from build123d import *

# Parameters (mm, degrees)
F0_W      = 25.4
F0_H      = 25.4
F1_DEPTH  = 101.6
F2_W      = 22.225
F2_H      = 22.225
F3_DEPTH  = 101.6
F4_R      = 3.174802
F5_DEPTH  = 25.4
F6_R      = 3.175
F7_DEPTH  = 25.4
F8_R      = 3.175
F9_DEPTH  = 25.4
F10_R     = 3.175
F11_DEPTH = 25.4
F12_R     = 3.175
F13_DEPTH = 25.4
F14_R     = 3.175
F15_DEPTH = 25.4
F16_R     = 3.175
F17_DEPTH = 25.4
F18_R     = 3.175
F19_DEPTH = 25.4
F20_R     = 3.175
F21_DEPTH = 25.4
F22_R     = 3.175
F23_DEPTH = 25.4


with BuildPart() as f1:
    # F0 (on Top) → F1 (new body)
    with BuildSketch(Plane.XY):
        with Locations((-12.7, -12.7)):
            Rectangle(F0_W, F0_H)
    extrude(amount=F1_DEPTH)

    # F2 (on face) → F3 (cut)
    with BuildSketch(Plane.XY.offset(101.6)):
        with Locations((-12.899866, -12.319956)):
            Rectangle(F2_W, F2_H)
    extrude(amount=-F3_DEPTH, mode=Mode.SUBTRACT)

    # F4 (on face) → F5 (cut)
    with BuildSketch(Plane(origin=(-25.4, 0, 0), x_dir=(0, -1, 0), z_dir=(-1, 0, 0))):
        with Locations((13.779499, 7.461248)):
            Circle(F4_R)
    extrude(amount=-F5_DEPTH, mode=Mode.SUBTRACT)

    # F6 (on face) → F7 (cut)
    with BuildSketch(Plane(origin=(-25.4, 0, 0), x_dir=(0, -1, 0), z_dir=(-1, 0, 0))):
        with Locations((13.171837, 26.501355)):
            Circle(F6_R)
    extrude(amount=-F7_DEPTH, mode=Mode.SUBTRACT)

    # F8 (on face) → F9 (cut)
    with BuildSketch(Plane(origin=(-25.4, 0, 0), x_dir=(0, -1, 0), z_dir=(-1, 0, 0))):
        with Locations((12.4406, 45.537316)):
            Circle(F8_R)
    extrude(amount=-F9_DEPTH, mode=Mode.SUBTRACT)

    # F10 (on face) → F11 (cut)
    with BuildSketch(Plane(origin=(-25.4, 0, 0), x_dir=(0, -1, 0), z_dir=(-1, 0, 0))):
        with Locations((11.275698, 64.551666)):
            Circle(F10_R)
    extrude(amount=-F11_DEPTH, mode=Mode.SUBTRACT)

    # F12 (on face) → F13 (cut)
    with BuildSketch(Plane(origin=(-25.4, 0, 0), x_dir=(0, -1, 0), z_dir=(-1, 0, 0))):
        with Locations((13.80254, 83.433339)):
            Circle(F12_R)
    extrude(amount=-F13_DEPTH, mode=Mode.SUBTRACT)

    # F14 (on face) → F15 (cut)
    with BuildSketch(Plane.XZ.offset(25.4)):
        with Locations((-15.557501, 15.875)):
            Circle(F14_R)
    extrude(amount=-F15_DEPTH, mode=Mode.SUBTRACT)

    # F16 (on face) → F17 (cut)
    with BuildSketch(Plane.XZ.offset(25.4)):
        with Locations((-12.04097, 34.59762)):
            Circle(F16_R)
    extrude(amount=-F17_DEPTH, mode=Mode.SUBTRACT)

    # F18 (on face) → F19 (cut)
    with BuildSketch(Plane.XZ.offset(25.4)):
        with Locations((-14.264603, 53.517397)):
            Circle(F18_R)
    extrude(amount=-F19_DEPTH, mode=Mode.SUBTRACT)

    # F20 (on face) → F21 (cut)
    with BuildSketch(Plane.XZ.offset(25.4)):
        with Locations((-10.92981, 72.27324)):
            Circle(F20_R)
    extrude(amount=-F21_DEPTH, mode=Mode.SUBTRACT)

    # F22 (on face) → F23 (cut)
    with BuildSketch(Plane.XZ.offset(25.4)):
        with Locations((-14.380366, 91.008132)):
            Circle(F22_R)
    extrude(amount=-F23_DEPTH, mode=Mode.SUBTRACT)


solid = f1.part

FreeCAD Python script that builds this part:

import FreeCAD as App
import Part
import Sketcher
Q = App.Units.Quantity


def add_polygon(sketch, points):
    """Adds a closed chain of lines whose ends are joined by coincident constraints."""
    first, n = sketch.GeometryCount, len(points)
    for a, b in zip(points, points[1:] + points[:1]):
        sketch.addGeometry(Part.LineSegment(App.Vector(*a, 0), App.Vector(*b, 0)), False)
    for i in range(n):
        sketch.addConstraint(Sketcher.Constraint("Coincident", first + i, 2, first + (i + 1) % n, 1))

doc = App.newDocument("Part")
body = doc.addObject("PartDesign::Body", "Body")

# Sketch on XY plane
sketch1 = doc.addObject("Sketcher::SketchObject", "Sketch")
body.addObject(sketch1)
sketch1.AttachmentSupport = (doc.XY_Plane, [""])
sketch1.MapMode = "FlatFace"
add_polygon(sketch1, [(-25.4, 0), (-25.4, -25.4), (0, -25.4), (0, 0)])  # lines 0-3
sketch1.addConstraint(Sketcher.Constraint("Vertical", 0))
sketch1.addConstraint(Sketcher.Constraint("Horizontal", 1))
sketch1.addConstraint(Sketcher.Constraint("Vertical", 2))
sketch1.addConstraint(Sketcher.Constraint("Horizontal", 3))
sketch1.addConstraint(Sketcher.Constraint("Coincident", 2, 2, -1, 1))
sketch1.addConstraint(Sketcher.Constraint("Equal", 3, 0))
sketch1.addConstraint(Sketcher.Constraint("DistanceX", 1, 1, 1, 2, Q("1 in")))
pad1 = doc.addObject("PartDesign::Pad", "Pad")
body.addObject(pad1)
pad1.Profile = sketch1
pad1.Length = Q("4 in")

# Sketch on XY plane
sketch2 = doc.addObject("Sketcher::SketchObject", "Sketch001")
body.addObject(sketch2)
sketch2.AttachmentSupport = (doc.XY_Plane, [""])
sketch2.MapMode = "FlatFace"
sketch2.AttachmentOffset = App.Placement(App.Vector(0, 0, 4 * 25.4), App.Rotation())
add_polygon(sketch2, [(-24.012366, -1.207456), (-24.012366, -23.432456), (-1.787366, -23.432456), (-1.787366, -1.207456)])  # lines 0-3
sketch2.addConstraint(Sketcher.Constraint("Vertical", 0))
sketch2.addConstraint(Sketcher.Constraint("Horizontal", 1))
sketch2.addConstraint(Sketcher.Constraint("Vertical", 2))
sketch2.addConstraint(Sketcher.Constraint("Horizontal", 3))
sketch2.addConstraint(Sketcher.Constraint("Equal", 3, 0))
sketch2.addConstraint(Sketcher.Constraint("DistanceX", 1, 1, 1, 2, Q("0.875 in")))
sketch2.addConstraint(Sketcher.Constraint("DistanceX", 0, 2, -1, 1, 24.012366))
sketch2.addConstraint(Sketcher.Constraint("DistanceY", 0, 2, -1, 1, 23.432456))
pocket1 = doc.addObject("PartDesign::Pocket", "Pocket")
body.addObject(pocket1)
pocket1.Profile = sketch2
pocket1.Length = Q("4 in")

# Sketch on YZ plane
sketch3 = doc.addObject("Sketcher::SketchObject", "Sketch002")
body.addObject(sketch3)
sketch3.AttachmentSupport = (doc.YZ_Plane, [""])
sketch3.MapMode = "FlatFace"
sketch3.AttachmentOffset = App.Placement(App.Vector(0, 0, -1 * 25.4), App.Rotation())
sketch3.addGeometry(Part.Circle(App.Vector(-13.779499, 7.461248, 0), App.Vector(0, 0, 1), 3.174802), False)
sketch3.addConstraint(Sketcher.Constraint("Diameter", 0, 6.349604))
sketch3.addConstraint(Sketcher.Constraint("DistanceX", 0, 3, -1, 1, Q("0.5425 in")))
sketch3.addConstraint(Sketcher.Constraint("DistanceY", -1, 1, 0, 3, 7.461248))
pocket2 = doc.addObject("PartDesign::Pocket", "Pocket001")
body.addObject(pocket2)
pocket2.Profile = sketch3
pocket2.Length = Q("1 in")
pocket2.Reversed = True

# Sketch on YZ plane
sketch4 = doc.addObject("Sketcher::SketchObject", "Sketch003")
body.addObject(sketch4)
sketch4.AttachmentSupport = (doc.YZ_Plane, [""])
sketch4.MapMode = "FlatFace"
sketch4.AttachmentOffset = App.Placement(App.Vector(0, 0, -1 * 25.4), App.Rotation())
sketch4.addGeometry(Part.Circle(App.Vector(-13.171837, 26.501355, 0), App.Vector(0, 0, 1), 3.175), False)
sketch4.addConstraint(Sketcher.Constraint("Diameter", 0, Q("0.25 in")))
sketch4.addConstraint(Sketcher.Constraint("DistanceX", 0, 3, -1, 1, 13.171837))
sketch4.addConstraint(Sketcher.Constraint("DistanceY", -1, 1, 0, 3, 26.501355))
pocket3 = doc.addObject("PartDesign::Pocket", "Pocket002")
body.addObject(pocket3)
pocket3.Profile = sketch4
pocket3.Length = Q("1 in")
pocket3.Reversed = True

# Sketch on YZ plane
sketch5 = doc.addObject("Sketcher::SketchObject", "Sketch004")
body.addObject(sketch5)
sketch5.AttachmentSupport = (doc.YZ_Plane, [""])
sketch5.MapMode = "FlatFace"
sketch5.AttachmentOffset = App.Placement(App.Vector(0, 0, -1 * 25.4), App.Rotation())
sketch5.addGeometry(Part.Circle(App.Vector(-12.4406, 45.537316, 0), App.Vector(0, 0, 1), 3.175), False)
sketch5.addConstraint(Sketcher.Constraint("Diameter", 0, Q("0.25 in")))
sketch5.addConstraint(Sketcher.Constraint("DistanceX", 0, 3, -1, 1, 12.4406))
sketch5.addConstraint(Sketcher.Constraint("DistanceY", -1, 1, 0, 3, 45.537316))
pocket4 = doc.addObject("PartDesign::Pocket", "Pocket003")
body.addObject(pocket4)
pocket4.Profile = sketch5
pocket4.Length = Q("1 in")
pocket4.Reversed = True

# Sketch on YZ plane
sketch6 = doc.addObject("Sketcher::SketchObject", "Sketch005")
body.addObject(sketch6)
sketch6.AttachmentSupport = (doc.YZ_Plane, [""])
sketch6.MapMode = "FlatFace"
sketch6.AttachmentOffset = App.Placement(App.Vector(0, 0, -1 * 25.4), App.Rotation())
sketch6.addGeometry(Part.Circle(App.Vector(-11.275698, 64.551666, 0), App.Vector(0, 0, 1), 3.175), False)
sketch6.addConstraint(Sketcher.Constraint("Diameter", 0, Q("0.25 in")))
sketch6.addConstraint(Sketcher.Constraint("DistanceX", 0, 3, -1, 1, 11.275698))
sketch6.addConstraint(Sketcher.Constraint("DistanceY", -1, 1, 0, 3, 64.551666))
pocket5 = doc.addObject("PartDesign::Pocket", "Pocket004")
body.addObject(pocket5)
pocket5.Profile = sketch6
pocket5.Length = Q("1 in")
pocket5.Reversed = True

# Sketch on YZ plane
sketch7 = doc.addObject("Sketcher::SketchObject", "Sketch006")
body.addObject(sketch7)
sketch7.AttachmentSupport = (doc.YZ_Plane, [""])
sketch7.MapMode = "FlatFace"
sketch7.AttachmentOffset = App.Placement(App.Vector(0, 0, -1 * 25.4), App.Rotation())
sketch7.addGeometry(Part.Circle(App.Vector(-13.80254, 83.433339, 0), App.Vector(0, 0, 1), 3.175), False)
sketch7.addConstraint(Sketcher.Constraint("Diameter", 0, Q("0.25 in")))
sketch7.addConstraint(Sketcher.Constraint("DistanceX", 0, 3, -1, 1, 13.80254))
sketch7.addConstraint(Sketcher.Constraint("DistanceY", -1, 1, 0, 3, 83.433339))
pocket6 = doc.addObject("PartDesign::Pocket", "Pocket005")
body.addObject(pocket6)
pocket6.Profile = sketch7
pocket6.Length = Q("1 in")
pocket6.Reversed = True

# Sketch on XZ plane
sketch8 = doc.addObject("Sketcher::SketchObject", "Sketch007")
body.addObject(sketch8)
sketch8.AttachmentSupport = (doc.XZ_Plane, [""])
sketch8.MapMode = "FlatFace"
sketch8.AttachmentOffset = App.Placement(App.Vector(0, 0, 1 * 25.4), App.Rotation())
sketch8.addGeometry(Part.Circle(App.Vector(-15.557501, 15.875, 0), App.Vector(0, 0, 1), 3.175), False)
sketch8.addConstraint(Sketcher.Constraint("Diameter", 0, Q("0.25 in")))
sketch8.addConstraint(Sketcher.Constraint("DistanceY", -1, 1, 0, 3, Q("0.625 in")))
sketch8.addConstraint(Sketcher.Constraint("DistanceX", 0, 3, -1, 1, Q("0.6125 in")))
pocket7 = doc.addObject("PartDesign::Pocket", "Pocket006")
body.addObject(pocket7)
pocket7.Profile = sketch8
pocket7.Length = Q("1 in")

# Sketch on XZ plane
sketch9 = doc.addObject("Sketcher::SketchObject", "Sketch008")
body.addObject(sketch9)
sketch9.AttachmentSupport = (doc.XZ_Plane, [""])
sketch9.MapMode = "FlatFace"
sketch9.AttachmentOffset = App.Placement(App.Vector(0, 0, 1 * 25.4), App.Rotation())
sketch9.addGeometry(Part.Circle(App.Vector(-12.04097, 34.59762, 0), App.Vector(0, 0, 1), 3.175), False)
sketch9.addConstraint(Sketcher.Constraint("Diameter", 0, Q("0.25 in")))
sketch9.addConstraint(Sketcher.Constraint("DistanceX", 0, 3, -1, 1, 12.04097))
sketch9.addConstraint(Sketcher.Constraint("DistanceY", -1, 1, 0, 3, 34.59762))
pocket8 = doc.addObject("PartDesign::Pocket", "Pocket007")
body.addObject(pocket8)
pocket8.Profile = sketch9
pocket8.Length = Q("1 in")

# Sketch on XZ plane
sketch10 = doc.addObject("Sketcher::SketchObject", "Sketch009")
body.addObject(sketch10)
sketch10.AttachmentSupport = (doc.XZ_Plane, [""])
sketch10.MapMode = "FlatFace"
sketch10.AttachmentOffset = App.Placement(App.Vector(0, 0, 1 * 25.4), App.Rotation())
sketch10.addGeometry(Part.Circle(App.Vector(-14.264603, 53.517397, 0), App.Vector(0, 0, 1), 3.175), False)
sketch10.addConstraint(Sketcher.Constraint("Diameter", 0, Q("0.25 in")))
sketch10.addConstraint(Sketcher.Constraint("DistanceX", 0, 3, -1, 1, 14.264603))
sketch10.addConstraint(Sketcher.Constraint("DistanceY", -1, 1, 0, 3, 53.517397))
pocket9 = doc.addObject("PartDesign::Pocket", "Pocket008")
body.addObject(pocket9)
pocket9.Profile = sketch10
pocket9.Length = Q("1 in")

# Sketch on XZ plane
sketch11 = doc.addObject("Sketcher::SketchObject", "Sketch010")
body.addObject(sketch11)
sketch11.AttachmentSupport = (doc.XZ_Plane, [""])
sketch11.MapMode = "FlatFace"
sketch11.AttachmentOffset = App.Placement(App.Vector(0, 0, 1 * 25.4), App.Rotation())
sketch11.addGeometry(Part.Circle(App.Vector(-10.92981, 72.27324, 0), App.Vector(0, 0, 1), 3.175), False)
sketch11.addConstraint(Sketcher.Constraint("Diameter", 0, Q("0.25 in")))
sketch11.addConstraint(Sketcher.Constraint("DistanceX", 0, 3, -1, 1, 10.92981))
sketch11.addConstraint(Sketcher.Constraint("DistanceY", -1, 1, 0, 3, 72.27324))
pocket10 = doc.addObject("PartDesign::Pocket", "Pocket009")
body.addObject(pocket10)
pocket10.Profile = sketch11
pocket10.Length = Q("1 in")

# Sketch on XZ plane
sketch12 = doc.addObject("Sketcher::SketchObject", "Sketch011")
body.addObject(sketch12)
sketch12.AttachmentSupport = (doc.XZ_Plane, [""])
sketch12.MapMode = "FlatFace"
sketch12.AttachmentOffset = App.Placement(App.Vector(0, 0, 1 * 25.4), App.Rotation())
sketch12.addGeometry(Part.Circle(App.Vector(-14.380366, 91.008132, 0), App.Vector(0, 0, 1), 3.175), False)
sketch12.addConstraint(Sketcher.Constraint("Diameter", 0, Q("0.25 in")))
sketch12.addConstraint(Sketcher.Constraint("DistanceX", 0, 3, -1, 1, 14.380366))
sketch12.addConstraint(Sketcher.Constraint("DistanceY", -1, 1, 0, 3, 91.008132))
pocket11 = doc.addObject("PartDesign::Pocket", "Pocket010")
body.addObject(pocket11)
pocket11.Profile = sketch12
pocket11.Length = Q("1 in")

doc.recompute()
